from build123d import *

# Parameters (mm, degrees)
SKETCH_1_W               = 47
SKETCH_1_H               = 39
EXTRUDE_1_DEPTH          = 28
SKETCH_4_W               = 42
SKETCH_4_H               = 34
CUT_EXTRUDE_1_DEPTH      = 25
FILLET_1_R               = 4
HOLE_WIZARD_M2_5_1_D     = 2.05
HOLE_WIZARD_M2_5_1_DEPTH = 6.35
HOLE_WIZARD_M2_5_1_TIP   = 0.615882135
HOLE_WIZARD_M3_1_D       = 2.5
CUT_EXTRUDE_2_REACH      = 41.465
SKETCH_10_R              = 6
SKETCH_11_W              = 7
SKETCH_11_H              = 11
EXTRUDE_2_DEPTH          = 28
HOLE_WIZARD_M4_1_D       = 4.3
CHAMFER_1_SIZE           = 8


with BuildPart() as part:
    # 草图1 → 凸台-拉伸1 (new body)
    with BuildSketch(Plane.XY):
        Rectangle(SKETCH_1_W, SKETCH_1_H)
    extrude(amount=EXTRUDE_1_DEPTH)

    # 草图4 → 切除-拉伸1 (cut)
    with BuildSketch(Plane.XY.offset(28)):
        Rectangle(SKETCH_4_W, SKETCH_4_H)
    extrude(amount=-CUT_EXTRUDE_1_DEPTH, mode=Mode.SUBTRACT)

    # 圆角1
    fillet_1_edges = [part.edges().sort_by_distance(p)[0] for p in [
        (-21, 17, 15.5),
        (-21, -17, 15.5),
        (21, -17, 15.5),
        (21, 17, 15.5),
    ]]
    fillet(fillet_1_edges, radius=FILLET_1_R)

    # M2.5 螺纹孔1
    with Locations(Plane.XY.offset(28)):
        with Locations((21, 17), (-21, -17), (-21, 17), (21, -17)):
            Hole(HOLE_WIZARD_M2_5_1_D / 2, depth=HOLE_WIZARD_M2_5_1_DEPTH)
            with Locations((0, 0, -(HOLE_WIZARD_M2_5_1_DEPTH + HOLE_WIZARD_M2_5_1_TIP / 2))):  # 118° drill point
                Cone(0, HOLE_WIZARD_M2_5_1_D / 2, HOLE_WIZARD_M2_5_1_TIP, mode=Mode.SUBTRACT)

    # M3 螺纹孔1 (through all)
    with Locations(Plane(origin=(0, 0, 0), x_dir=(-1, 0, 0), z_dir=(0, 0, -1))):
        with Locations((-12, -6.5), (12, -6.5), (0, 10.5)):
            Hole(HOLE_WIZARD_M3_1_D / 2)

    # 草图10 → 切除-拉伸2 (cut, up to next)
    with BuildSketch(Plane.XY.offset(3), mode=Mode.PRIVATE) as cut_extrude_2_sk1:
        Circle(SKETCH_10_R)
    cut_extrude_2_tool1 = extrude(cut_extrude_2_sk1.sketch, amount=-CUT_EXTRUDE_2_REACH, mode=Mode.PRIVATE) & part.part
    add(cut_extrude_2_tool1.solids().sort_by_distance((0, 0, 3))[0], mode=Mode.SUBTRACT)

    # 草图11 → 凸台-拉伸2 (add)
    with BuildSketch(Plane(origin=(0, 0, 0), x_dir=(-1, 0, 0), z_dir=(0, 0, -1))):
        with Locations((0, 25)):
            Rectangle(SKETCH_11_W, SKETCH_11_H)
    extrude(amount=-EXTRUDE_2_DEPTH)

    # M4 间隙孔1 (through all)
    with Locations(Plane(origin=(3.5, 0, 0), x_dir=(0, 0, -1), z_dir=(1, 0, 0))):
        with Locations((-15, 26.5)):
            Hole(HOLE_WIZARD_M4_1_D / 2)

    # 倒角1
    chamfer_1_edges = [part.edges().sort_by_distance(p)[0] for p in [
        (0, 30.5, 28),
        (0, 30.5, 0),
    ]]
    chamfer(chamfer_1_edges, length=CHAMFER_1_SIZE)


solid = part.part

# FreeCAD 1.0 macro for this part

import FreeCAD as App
import Part
import Sketcher
from FreeCAD import Vector


def edges_at(feature, points):
    """Names of the edges that pass closest to the given points."""
    edges = feature.Shape.Edges
    near = lambda p: min(range(len(edges)), key=lambda i: edges[i].distToShape(Part.Vertex(*p))[0])
    return sorted({f"Edge{near(p) + 1}" for p in points})


def add_polygon(sketch, points):
    """Adds a closed chain of lines whose ends are joined by coincident constraints."""
    first, n = sketch.GeometryCount, len(points)
    for a, b in zip(points, points[1:] + points[:1]):
        sketch.addGeometry(Part.LineSegment(App.Vector(*a, 0), App.Vector(*b, 0)), False)
    for i in range(n):
        sketch.addConstraint(Sketcher.Constraint("Coincident", first + i, 2, first + (i + 1) % n, 1))

doc = App.newDocument("Part")
body = doc.addObject("PartDesign::Body", "Body")

# Sketch on XY plane
sketch1 = body.newObject("Sketcher::SketchObject", "Sketch")
sketch1.AttachmentSupport = (doc.getObject("XY_Plane"), [""])
sketch1.MapMode = "FlatFace"
add_polygon(sketch1, [(-24, 20), (-24, -20), (24, -20), (24, 20)])  # lines 0-3
sketch1.addConstraint(Sketcher.Constraint("Vertical", 0))
sketch1.addConstraint(Sketcher.Constraint("Horizontal", 1))
sketch1.addConstraint(Sketcher.Constraint("Vertical", 2))
sketch1.addConstraint(Sketcher.Constraint("Horizontal", 3))
sketch1.addConstraint(Sketcher.Constraint("Symmetric", 0, 2, 2, 2, -1, 1))
sketch1.addConstraint(Sketcher.Constraint("DistanceX", 1, 1, 1, 2, 47.0))
sketch1.addConstraint(Sketcher.Constraint("DistanceY", 0, 2, 0, 1, 39.0))
pad1 = body.newObject("PartDesign::Pad", "Pad")
pad1.Profile = sketch1
pad1.Length = 28

# Sketch on XY plane
sketch2 = body.newObject("Sketcher::SketchObject", "Sketch001")
sketch2.AttachmentSupport = (doc.getObject("XY_Plane"), [""])
sketch2.MapMode = "FlatFace"
sketch2.AttachmentOffset = App.Placement(Vector(0, 0, 28), App.Rotation())
add_polygon(sketch2, [(-21, 17), (-21, -17), (21, -17), (21, 17)])  # lines 0-3
sketch2.addConstraint(Sketcher.Constraint("Vertical", 0))
sketch2.addConstraint(Sketcher.Constraint("Horizontal", 1))
sketch2.addConstraint(Sketcher.Constraint("Vertical", 2))
sketch2.addConstraint(Sketcher.Constraint("Horizontal", 3))
sketch2.addConstraint(Sketcher.Constraint("Symmetric", 0, 2, 2, 2, -1, 1))
sketch2.addConstraint(Sketcher.Constraint("DistanceX", 1, 1, 1, 2, 42.0))
sketch2.addConstraint(Sketcher.Constraint("DistanceY", 0, 2, 0, 1, 34.0))
pocket1 = body.newObject("PartDesign::Pocket", "Pocket")
pocket1.Profile = sketch2
pocket1.Length = 25
doc.recompute()

fillet = body.newObject("PartDesign::Fillet", "Fillet")
fillet.Base = (pocket1, edges_at(pocket1, [
    (-21, 17, 15.5),
    (-21, -17, 15.5),
    (21, -17, 15.5),
    (21, 17, 15.5),
]))
fillet.Radius = 4

# Sketch on XY plane
sketch3 = body.newObject("Sketcher::SketchObject", "Sketch002")
sketch3.AttachmentSupport = (doc.getObject("XY_Plane"), [""])
sketch3.MapMode = "FlatFace"
sketch3.AttachmentOffset = App.Placement(Vector(0, 0, 28), App.Rotation())
sketch3.addGeometry(Part.Circle(Vector(21, 17, 0), Vector(0, 0, 1), 1), False)
sketch3.addGeometry(Part.Circle(Vector(-21, -17, 0), Vector(0, 0, 1), 1), False)
sketch3.addGeometry(Part.Circle(Vector(-21, 17, 0), Vector(0, 0, 1), 1), False)
sketch3.addGeometry(Part.Circle(Vector(21, -17, 0), Vector(0, 0, 1), 1), False)
sketch3.addConstraint(Sketcher.Constraint("Equal", 0, 1))
sketch3.addConstraint(Sketcher.Constraint("Equal", 1, 2))
sketch3.addConstraint(Sketcher.Constraint("Equal", 2, 3))
sketch3.addConstraint(Sketcher.Constraint("Symmetric", 0, 3, 1, 3, -1, 1))
sketch3.addConstraint(Sketcher.Constraint("Symmetric", 2, 3, 3, 3, -1, 1))
sketch3.addConstraint(Sketcher.Constraint("Symmetric", 0, 3, 2, 3, -2))
sketch3.addConstraint(Sketcher.Constraint("Diameter", 0, 2.05))
sketch3.addConstraint(Sketcher.Constraint("DistanceX", -1, 1, 0, 3, 21.0))
sketch3.addConstraint(Sketcher.Constraint("DistanceY", -1, 1, 0, 3, 17.0))
doc.recompute()
hole = body.newObject("PartDesign::Hole", "Hole")
hole.Profile = sketch3
hole.ThreadType = "None"
hole.Diameter = 2.05
hole.DepthType = "Dimension"
hole.Depth = 6.35
hole.DrillPoint = "Angled"
hole.DrillPointAngle = 118

# Sketch on XY plane
sketch4 = body.newObject("Sketcher::SketchObject", "Sketch003")
sketch4.AttachmentSupport = (doc.getObject("XY_Plane"), [""])
sketch4.MapMode = "FlatFace"
sketch4.addGeometry(Part.Circle(Vector(12, -6.5, 0), Vector(0, 0, 1), 1.2), False)
sketch4.addGeometry(Part.Circle(Vector(-12, -6.5, 0), Vector(0, 0, 1), 1.2), False)
sketch4.addGeometry(Part.Circle(Vector(0, 10.5, 0), Vector(0, 0, 1), 1.2), False)
sketch4.addConstraint(Sketcher.Constraint("Equal", 0, 1))
sketch4.addConstraint(Sketcher.Constraint("Equal", 1, 2))
sketch4.addConstraint(Sketcher.Constraint("Symmetric", 0, 3, 1, 3, -2))
sketch4.addConstraint(Sketcher.Constraint("PointOnObject", 2, 3, -2))
sketch4.addConstraint(Sketcher.Constraint("Diameter", 0, 2.5))
sketch4.addConstraint(Sketcher.Constraint("DistanceX", -1, 1, 0, 3, 12.0))
sketch4.addConstraint(Sketcher.Constraint("DistanceY", 0, 3, 2, 3, 17.0))
sketch4.addConstraint(Sketcher.Constraint("DistanceY", 0, 3, -1, 1, 6.5))
doc.recompute()
hole2 = body.newObject("PartDesign::Hole", "Hole001")
hole2.Profile = sketch4
hole2.ThreadType = "None"
hole2.Diameter = 2.5
hole2.DepthType = "ThroughAll"
hole2.Reversed = True

# Sketch on XY plane
sketch5 = body.newObject("Sketcher::SketchObject", "Sketch004")
sketch5.AttachmentSupport = (doc.getObject("XY_Plane"), [""])
sketch5.MapMode = "FlatFace"
sketch5.AttachmentOffset = App.Placement(Vector(0, 0, 3), App.Rotation())
sketch5.addGeometry(Part.Circle(Vector(0, 0, 0), Vector(0, 0, 1), 6), False)
sketch5.addConstraint(Sketcher.Constraint("Coincident", 0, 3, -1, 1))
sketch5.addConstraint(Sketcher.Constraint("Diameter", 0, 12.0))
pocket2 = body.newObject("PartDesign::Pocket", "Pocket001")
pocket2.Profile = sketch5
pocket2.Type = "UpToFirst"

# Sketch on XY plane
sketch6 = body.newObject("Sketcher::SketchObject", "Sketch005")
sketch6.AttachmentSupport = (doc.getObject("XY_Plane"), [""])
sketch6.MapMode = "FlatFace"
add_polygon(sketch6, [(4, 30), (4, 20), (-4, 20), (-4, 30)])  # lines 0-3
sketch6.addConstraint(Sketcher.Constraint("Vertical", 0))
sketch6.addConstraint(Sketcher.Constraint("Horizontal", 1))
sketch6.addConstraint(Sketcher.Constraint("Vertical", 2))
sketch6.addConstraint(Sketcher.Constraint("Horizontal", 3))
sketch6.addConstraint(Sketcher.Constraint("DistanceX", 1, 2, 1, 1, 7.0))
sketch6.addConstraint(Sketcher.Constraint("DistanceY", 0, 2, 0, 1, 11.0))
sketch6.addConstraint(Sketcher.Constraint("DistanceX", -1, 1, 0, 2, 3.5))
sketch6.addConstraint(Sketcher.Constraint("DistanceY", -1, 1, 0, 2, 19.5))
pad2 = body.newObject("PartDesign::Pad", "Pad001")
pad2.Profile = sketch6
pad2.Length = 28

# Sketch on YZ plane
sketch7 = body.newObject("Sketcher::SketchObject", "Sketch006")
sketch7.AttachmentSupport = (doc.getObject("YZ_Plane"), [""])
sketch7.MapMode = "FlatFace"
sketch7.AttachmentOffset = App.Placement(Vector(0, 0, 3.5), App.Rotation())
sketch7.addGeometry(Part.Circle(Vector(26.5, 15, 0), Vector(0, 0, 1), 2.1), False)
sketch7.addConstraint(Sketcher.Constraint("Diameter", 0, 4.3))
sketch7.addConstraint(Sketcher.Constraint("DistanceY", -1, 1, 0, 3, 15.0))
sketch7.addConstraint(Sketcher.Constraint("DistanceX", -1, 1, 0, 3, 26.5))
doc.recompute()
hole3 = body.newObject("PartDesign::Hole", "Hole002")
hole3.Profile = sketch7
hole3.ThreadType = "None"
hole3.Diameter = 4.3
hole3.DepthType = "ThroughAll"
doc.recompute()

chamfer = body.newObject("PartDesign::Chamfer", "Chamfer")
chamfer.Base = (hole3, edges_at(hole3, [(0, 30.5, 28), (0, 30.5, 0)]))
chamfer.Size = 8

doc.recompute()
